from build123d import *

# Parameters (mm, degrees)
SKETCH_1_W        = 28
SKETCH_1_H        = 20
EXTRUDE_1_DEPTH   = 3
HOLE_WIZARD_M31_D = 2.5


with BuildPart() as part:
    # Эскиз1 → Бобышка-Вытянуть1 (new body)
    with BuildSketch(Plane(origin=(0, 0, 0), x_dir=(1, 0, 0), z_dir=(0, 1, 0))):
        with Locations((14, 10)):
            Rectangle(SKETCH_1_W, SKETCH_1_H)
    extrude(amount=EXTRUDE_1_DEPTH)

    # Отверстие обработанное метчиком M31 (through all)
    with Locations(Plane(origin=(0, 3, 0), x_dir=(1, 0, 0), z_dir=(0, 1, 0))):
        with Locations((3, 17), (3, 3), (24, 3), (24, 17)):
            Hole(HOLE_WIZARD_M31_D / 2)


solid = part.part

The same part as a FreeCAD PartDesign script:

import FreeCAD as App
import Part
import Sketcher


def add_polygon(sketch, points):
    """Adds a closed chain of lines whose ends are joined by coincident constraints."""
    first, n = sketch.GeometryCount, len(points)
    for a, b in zip(points, points[1:] + points[:1]):
        sketch.addGeometry(Part.LineSegment(App.Vector(*a, 0), App.Vector(*b, 0)), False)
    for i in range(n):
        sketch.addConstraint(Sketcher.Constraint("Coincident", first + i, 2, first + (i + 1) % n, 1))

doc = App.newDocument("Part")
body = doc.addObject("PartDesign::Body", "Body")

sketch1 = doc.addObject("Sketcher::SketchObject", "Sketch")
body.addObject(sketch1)
sketch1.AttachmentSupport = (doc.XZ_Plane, [""])
sketch1.MapMode = "FlatFace"
add_polygon(sketch1, [(0, -20), (0, 0), (28, 0), (28, -20)])
sketch1.addConstraint([
    Sketcher.Constraint("Vertical", 0),
    Sketcher.Constraint("Horizontal", 1),
    Sketcher.Constraint("Vertical", 2),
    Sketcher.Constraint("Horizontal", 3),
    Sketcher.Constraint("Coincident", 0, 2, -1, 1),
    Sketcher.Constraint("DistanceX", 1, 1, 1, 2, 28.0),
    Sketcher.Constraint("DistanceY", 0, 1, 0, 2, 20.0),
])
pad1 = doc.addObject("PartDesign::Pad", "Pad")
body.addObject(pad1)
pad1.Profile = sketch1
pad1.Length = 3
pad1.Reversed = True

sketch2 = doc.addObject("Sketcher::SketchObject", "Sketch001")
body.addObject(sketch2)
sketch2.AttachmentSupport = (doc.XZ_Plane, [""])
sketch2.MapMode = "FlatFace"
sketch2.AttachmentOffset = App.Placement(App.Vector(0, 0, -3), App.Rotation())
sketch2.addGeometry([
    Part.Circle(App.Vector(3, -17, 0), App.Vector(0, 0, 1), 1.2),
    Part.Circle(App.Vector(3, -3, 0), App.Vector(0, 0, 1), 1.2),
    Part.Circle(App.Vector(24, -3, 0), App.Vector(0, 0, 1), 1.2),
    Part.Circle(App.Vector(24, -17, 0), App.Vector(0, 0, 1), 1.2),
], False)
sketch2.addConstraint([
    Sketcher.Constraint("Equal", 0, 1),
    Sketcher.Constraint("Equal", 1, 2),
    Sketcher.Constraint("Equal", 2, 3),
    Sketcher.Constraint("Horizontal", 1, 3, 2, 3),
    Sketcher.Constraint("Horizontal", 0, 3, 3, 3),
    Sketcher.Constraint("Vertical", 0, 3, 1, 3),
    Sketcher.Constraint("Vertical", 2, 3, 3, 3),
    Sketcher.Constraint("Diameter", 0, 2.5),
    Sketcher.Constraint("DistanceX", -1, 1, 0, 3, 3.0),
    Sketcher.Constraint("DistanceY", 0, 3, -1, 1, 17.0),
    Sketcher.Constraint("DistanceY", 1, 3, -1, 1, 3.0),
    Sketcher.Constraint("DistanceX", -1, 1, 2, 3, 24.0),
])
doc.recompute()
hole = doc.addObject("PartDesign::Hole", "Hole")
body.addObject(hole)
hole.Profile = sketch2
hole.ThreadType = "None"
hole.Diameter = 2.5
hole.DepthType = "ThroughAll"
hole.Reversed = True

doc.recompute()
